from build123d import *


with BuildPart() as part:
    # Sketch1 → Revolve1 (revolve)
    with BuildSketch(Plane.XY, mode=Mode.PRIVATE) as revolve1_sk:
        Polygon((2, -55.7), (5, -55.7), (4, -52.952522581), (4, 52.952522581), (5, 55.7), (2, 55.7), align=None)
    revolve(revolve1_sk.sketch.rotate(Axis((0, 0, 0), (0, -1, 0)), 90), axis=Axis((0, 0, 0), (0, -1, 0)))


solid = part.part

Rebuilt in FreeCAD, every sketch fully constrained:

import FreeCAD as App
import Part
import Sketcher
from FreeCAD import Vector
Q = App.Units.Quantity


def add_polygon(sketch, points):
    """Adds a closed chain of lines whose ends are joined by coincident constraints."""
    first, n = sketch.GeometryCount, len(points)
    for a, b in zip(points, points[1:] + points[:1]):
        sketch.addGeometry(Part.LineSegment(App.Vector(*a, 0), App.Vector(*b, 0)), False)
    for i in range(n):
        sketch.addConstraint(Sketcher.Constraint("Coincident", first + i, 2, first + (i + 1) % n, 1))

doc = App.newDocument("Part")
body = doc.addObject("PartDesign::Body", "Body")

sketch1 = doc.addObject("Sketcher::SketchObject", "Sketch")
body.addObject(sketch1)
sketch1.AttachmentSupport = (doc.XY_Plane, [""])
sketch1.MapMode = "FlatFace"
add_polygon(sketch1, [(2, -55.7), (5, -55.7), (4, -52.952523), (4, 52.952523), (5, 55.7), (2, 55.7)])
sketch1.addConstraint(Sketcher.Constraint("Horizontal", 0))
sketch1.addConstraint(Sketcher.Constraint("Vertical", 2))
sketch1.addConstraint(Sketcher.Constraint("Horizontal", 4))
sketch1.addConstraint(Sketcher.Constraint("Vertical", 5))
sketch1.addConstraint(Sketcher.Constraint("Symmetric", 0, 2, 3, 2, -1))
sketch1.addConstraint(Sketcher.Constraint("Equal", 1, 3))
sketch1.addConstraint(Sketcher.Constraint("DistanceX", 0, 1, 0, 2, Q("3 mm")))
sketch1.addConstraint(Sketcher.Constraint("Angle", 1, Q("110 deg")))
sketch1.addConstraint(Sketcher.Constraint("DistanceY", 5, 2, 5, 1, Q("111.4 mm")))
sketch1.addConstraint(Sketcher.Constraint("DistanceX", -1, 1, 0, 2, Q("5 mm")))
sketch1.addConstraint(Sketcher.Constraint("DistanceX", -1, 1, 1, 2, Q("4 mm")))
revolution = doc.addObject("PartDesign::Revolution", "Revolution")
body.addObject(revolution)
revolution.Profile = sketch1
revolution.ReferenceAxis = (sketch1, ["V_Axis"])
revolution.Angle = 360

doc.recompute()
